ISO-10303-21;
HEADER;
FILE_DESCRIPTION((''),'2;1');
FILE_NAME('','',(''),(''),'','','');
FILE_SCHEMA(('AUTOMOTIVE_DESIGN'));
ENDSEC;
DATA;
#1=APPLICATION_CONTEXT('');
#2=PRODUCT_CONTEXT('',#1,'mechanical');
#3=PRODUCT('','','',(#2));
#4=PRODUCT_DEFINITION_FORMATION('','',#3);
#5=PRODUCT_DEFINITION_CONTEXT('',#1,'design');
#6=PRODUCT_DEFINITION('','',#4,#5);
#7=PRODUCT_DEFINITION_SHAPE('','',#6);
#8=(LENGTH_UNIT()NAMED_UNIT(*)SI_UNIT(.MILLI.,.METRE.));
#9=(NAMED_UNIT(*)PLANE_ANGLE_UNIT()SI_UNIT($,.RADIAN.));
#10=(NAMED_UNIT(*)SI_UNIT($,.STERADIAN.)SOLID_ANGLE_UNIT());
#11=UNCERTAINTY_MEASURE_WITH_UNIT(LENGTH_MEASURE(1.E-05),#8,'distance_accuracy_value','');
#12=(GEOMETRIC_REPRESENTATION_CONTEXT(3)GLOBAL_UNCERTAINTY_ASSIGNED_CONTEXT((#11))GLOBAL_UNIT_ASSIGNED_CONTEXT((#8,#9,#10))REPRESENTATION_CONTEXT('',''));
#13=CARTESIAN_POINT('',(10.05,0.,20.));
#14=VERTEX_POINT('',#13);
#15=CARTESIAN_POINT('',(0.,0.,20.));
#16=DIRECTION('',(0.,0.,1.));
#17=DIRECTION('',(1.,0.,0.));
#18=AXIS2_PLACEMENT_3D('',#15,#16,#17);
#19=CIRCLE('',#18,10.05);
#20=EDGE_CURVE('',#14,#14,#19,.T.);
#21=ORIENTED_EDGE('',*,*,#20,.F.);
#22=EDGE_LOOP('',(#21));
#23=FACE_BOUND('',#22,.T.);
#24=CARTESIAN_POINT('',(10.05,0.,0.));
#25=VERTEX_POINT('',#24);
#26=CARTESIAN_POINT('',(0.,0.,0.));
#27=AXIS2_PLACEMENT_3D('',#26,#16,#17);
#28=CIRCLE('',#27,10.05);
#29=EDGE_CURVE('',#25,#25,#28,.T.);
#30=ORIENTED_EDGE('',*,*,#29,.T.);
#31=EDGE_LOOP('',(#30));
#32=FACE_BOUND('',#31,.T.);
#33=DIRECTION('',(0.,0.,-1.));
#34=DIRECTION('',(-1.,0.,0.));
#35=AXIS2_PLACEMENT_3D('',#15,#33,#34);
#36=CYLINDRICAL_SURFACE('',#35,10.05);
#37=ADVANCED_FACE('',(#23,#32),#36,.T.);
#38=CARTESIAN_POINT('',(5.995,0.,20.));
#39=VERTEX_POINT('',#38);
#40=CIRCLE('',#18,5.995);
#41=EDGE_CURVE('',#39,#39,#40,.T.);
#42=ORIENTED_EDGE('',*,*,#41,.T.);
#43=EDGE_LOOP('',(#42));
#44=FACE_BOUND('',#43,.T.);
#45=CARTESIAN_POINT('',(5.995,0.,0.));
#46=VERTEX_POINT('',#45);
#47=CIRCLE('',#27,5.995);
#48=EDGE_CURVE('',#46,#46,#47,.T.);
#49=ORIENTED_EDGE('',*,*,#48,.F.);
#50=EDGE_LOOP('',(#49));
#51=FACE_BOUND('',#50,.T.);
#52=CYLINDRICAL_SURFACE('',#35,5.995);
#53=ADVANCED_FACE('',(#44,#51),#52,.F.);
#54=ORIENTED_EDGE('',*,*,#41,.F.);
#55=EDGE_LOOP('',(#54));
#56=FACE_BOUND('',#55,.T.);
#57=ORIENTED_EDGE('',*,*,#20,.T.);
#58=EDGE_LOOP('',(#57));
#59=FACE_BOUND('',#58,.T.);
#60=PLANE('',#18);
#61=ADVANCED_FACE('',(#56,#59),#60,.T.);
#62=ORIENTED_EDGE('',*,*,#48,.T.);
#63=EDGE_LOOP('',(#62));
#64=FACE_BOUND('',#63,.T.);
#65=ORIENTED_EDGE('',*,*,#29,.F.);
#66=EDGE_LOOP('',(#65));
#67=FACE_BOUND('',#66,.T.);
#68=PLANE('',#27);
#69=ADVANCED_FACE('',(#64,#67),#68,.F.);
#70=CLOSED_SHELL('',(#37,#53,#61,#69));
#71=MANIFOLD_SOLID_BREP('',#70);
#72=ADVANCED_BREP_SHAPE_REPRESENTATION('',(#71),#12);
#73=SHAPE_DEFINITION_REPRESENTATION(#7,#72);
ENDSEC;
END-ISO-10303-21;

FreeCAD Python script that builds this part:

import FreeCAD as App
import Part
import Sketcher

V = App.Vector

doc = App.newDocument("Part")
params = doc.addObject("Spreadsheet::Sheet", "Params")
for row, (alias, value) in enumerate([
    ("sketch1_diameter", "20.1 mm"),
    ("sketch1_diameter2", "11.99 mm"),
    ("pad1_length", "20 mm"),
], start=1):
    params.set(f"A{row}", alias)
    params.set(f"B{row}", "=" + value)
    params.setAlias(f"B{row}", alias)

body = doc.addObject("PartDesign::Body", "Body")

# Sketch on XY plane
sketch1 = doc.addObject("Sketcher::SketchObject", "Sketch")
body.addObject(sketch1)
sketch1.AttachmentSupport = (doc.XY_Plane, [""])
sketch1.MapMode = "FlatFace"
sketch1.addGeometry(Part.Circle(V(0, 0, 0), V(0, 0, 1), 10), False)
sketch1.addGeometry(Part.Circle(V(0, 0, 0), V(0, 0, 1), 6), False)
sketch1.addConstraint(Sketcher.Constraint("Coincident", 0, 3, -1, 1))
sketch1.addConstraint(Sketcher.Constraint("Coincident", 1, 3, -1, 1))
sketch1.addConstraint(Sketcher.Constraint("Diameter", 0, 20.1))
sketch1.addConstraint(Sketcher.Constraint("Diameter", 1, 11.99))
sketch1.setExpression("Constraints[2]", "Params.sketch1_diameter")
sketch1.setExpression("Constraints[3]", "Params.sketch1_diameter2")
pad1 = doc.addObject("PartDesign::Pad", "Pad")
body.addObject(pad1)
pad1.Profile = sketch1
pad1.setExpression("Length", "Params.pad1_length")

doc.recompute()
